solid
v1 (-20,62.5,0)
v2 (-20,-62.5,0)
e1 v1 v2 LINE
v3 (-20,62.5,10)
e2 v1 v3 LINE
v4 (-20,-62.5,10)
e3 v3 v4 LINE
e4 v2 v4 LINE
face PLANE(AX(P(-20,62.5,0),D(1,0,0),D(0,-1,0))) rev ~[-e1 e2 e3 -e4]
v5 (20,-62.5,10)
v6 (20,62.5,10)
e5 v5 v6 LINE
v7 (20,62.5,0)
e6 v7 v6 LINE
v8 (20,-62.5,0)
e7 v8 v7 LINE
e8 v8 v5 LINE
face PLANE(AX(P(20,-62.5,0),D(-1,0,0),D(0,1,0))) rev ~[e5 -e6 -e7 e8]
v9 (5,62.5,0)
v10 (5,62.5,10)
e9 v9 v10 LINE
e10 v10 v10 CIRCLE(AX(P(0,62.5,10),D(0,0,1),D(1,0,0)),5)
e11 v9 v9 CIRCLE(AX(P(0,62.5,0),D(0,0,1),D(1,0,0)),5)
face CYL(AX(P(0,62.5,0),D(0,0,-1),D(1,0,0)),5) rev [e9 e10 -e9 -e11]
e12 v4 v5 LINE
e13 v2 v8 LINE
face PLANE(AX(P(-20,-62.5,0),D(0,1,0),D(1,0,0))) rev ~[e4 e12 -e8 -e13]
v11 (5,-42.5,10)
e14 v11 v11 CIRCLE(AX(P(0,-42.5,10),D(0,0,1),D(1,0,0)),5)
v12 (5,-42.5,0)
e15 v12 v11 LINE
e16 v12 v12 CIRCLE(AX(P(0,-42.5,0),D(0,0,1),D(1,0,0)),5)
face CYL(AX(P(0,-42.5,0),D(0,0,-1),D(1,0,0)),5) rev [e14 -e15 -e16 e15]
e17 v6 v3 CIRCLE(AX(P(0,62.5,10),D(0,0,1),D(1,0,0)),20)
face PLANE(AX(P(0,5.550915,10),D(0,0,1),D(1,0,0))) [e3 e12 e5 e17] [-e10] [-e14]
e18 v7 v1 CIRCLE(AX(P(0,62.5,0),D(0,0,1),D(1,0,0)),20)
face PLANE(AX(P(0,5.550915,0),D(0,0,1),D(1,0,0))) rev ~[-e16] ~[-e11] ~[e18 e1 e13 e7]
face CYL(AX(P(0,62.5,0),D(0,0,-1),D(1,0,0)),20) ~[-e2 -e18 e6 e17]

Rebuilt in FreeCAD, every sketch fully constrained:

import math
import FreeCAD as App
import Part
import Sketcher

doc = App.newDocument("Part")
params = doc.addObject("Spreadsheet::Sheet", "Params")
for row, (alias, value) in enumerate([
    ("sketch1_diameter", "10 mm"),
    ("sketch1_radius", "20 mm"),
    ("sketch1_height", "125 mm"),
    ("pad1_length", "10 mm"),
], start=1):
    params.set(f"A{row}", alias)
    params.set(f"B{row}", "=" + value)
    params.setAlias(f"B{row}", alias)

body = doc.addObject("PartDesign::Body", "Body")

# Sketch on XY plane
sketch1 = doc.addObject("Sketcher::SketchObject", "Sketch")
body.addObject(sketch1)
sketch1.AttachmentSupport = (doc.XY_Plane, [""])
sketch1.MapMode = "FlatFace"
sketch1.addGeometry(Part.LineSegment(App.Vector(-20, -62, 0), App.Vector(20, -62, 0)), False)
sketch1.addGeometry(Part.LineSegment(App.Vector(20, -62, 0), App.Vector(20, 62, 0)), False)
sketch1.addGeometry(Part.ArcOfCircle(Part.Circle(App.Vector(0, 62, 0), App.Vector(0, 0, 1), 20), math.radians(0), math.radians(180)), False)
sketch1.addGeometry(Part.LineSegment(App.Vector(-20, 62, 0), App.Vector(-20, -62, 0)), False)
sketch1.addGeometry(Part.Circle(App.Vector(0, -42, 0), App.Vector(0, 0, 1), 5), False)
sketch1.addGeometry(Part.Circle(App.Vector(0, 62, 0), App.Vector(0, 0, 1), 5), False)
sketch1.addConstraint(Sketcher.Constraint("Coincident", 0, 2, 1, 1))
sketch1.addConstraint(Sketcher.Constraint("Tangent", 1, 2, 2, 1))
sketch1.addConstraint(Sketcher.Constraint("Tangent", 2, 2, 3, 1))
sketch1.addConstraint(Sketcher.Constraint("Coincident", 3, 2, 0, 1))
sketch1.addConstraint(Sketcher.Constraint("Horizontal", 0))
sketch1.addConstraint(Sketcher.Constraint("Vertical", 1))
sketch1.addConstraint(Sketcher.Constraint("Vertical", 3))
sketch1.addConstraint(Sketcher.Constraint("Coincident", 5, 3, 2, 3))
sketch1.addConstraint(Sketcher.Constraint("Equal", 4, 5))
sketch1.addConstraint(Sketcher.Constraint("Symmetric", 0, 2, 2, 2, -1, 1))
sketch1.addConstraint(Sketcher.Constraint("PointOnObject", 4, 3, -2))
sketch1.addConstraint(Sketcher.Constraint("Diameter", 4, 10.0))
sketch1.addConstraint(Sketcher.Constraint("Radius", 2, 20.0))
sketch1.addConstraint(Sketcher.Constraint("DistanceY", 1, 1, 1, 2, 125.0))
sketch1.addConstraint(Sketcher.Constraint("DistanceY", 4, 3, 2, 3, 105.0))
sketch1.setExpression("Constraints[11]", "Params.sketch1_diameter")
sketch1.setExpression("Constraints[12]", "Params.sketch1_radius")
sketch1.setExpression("Constraints[13]", "Params.sketch1_height")
pad1 = doc.addObject("PartDesign::Pad", "Pad")
body.addObject(pad1)
pad1.Profile = sketch1
pad1.setExpression("Length", "Params.pad1_length")

doc.recompute()
